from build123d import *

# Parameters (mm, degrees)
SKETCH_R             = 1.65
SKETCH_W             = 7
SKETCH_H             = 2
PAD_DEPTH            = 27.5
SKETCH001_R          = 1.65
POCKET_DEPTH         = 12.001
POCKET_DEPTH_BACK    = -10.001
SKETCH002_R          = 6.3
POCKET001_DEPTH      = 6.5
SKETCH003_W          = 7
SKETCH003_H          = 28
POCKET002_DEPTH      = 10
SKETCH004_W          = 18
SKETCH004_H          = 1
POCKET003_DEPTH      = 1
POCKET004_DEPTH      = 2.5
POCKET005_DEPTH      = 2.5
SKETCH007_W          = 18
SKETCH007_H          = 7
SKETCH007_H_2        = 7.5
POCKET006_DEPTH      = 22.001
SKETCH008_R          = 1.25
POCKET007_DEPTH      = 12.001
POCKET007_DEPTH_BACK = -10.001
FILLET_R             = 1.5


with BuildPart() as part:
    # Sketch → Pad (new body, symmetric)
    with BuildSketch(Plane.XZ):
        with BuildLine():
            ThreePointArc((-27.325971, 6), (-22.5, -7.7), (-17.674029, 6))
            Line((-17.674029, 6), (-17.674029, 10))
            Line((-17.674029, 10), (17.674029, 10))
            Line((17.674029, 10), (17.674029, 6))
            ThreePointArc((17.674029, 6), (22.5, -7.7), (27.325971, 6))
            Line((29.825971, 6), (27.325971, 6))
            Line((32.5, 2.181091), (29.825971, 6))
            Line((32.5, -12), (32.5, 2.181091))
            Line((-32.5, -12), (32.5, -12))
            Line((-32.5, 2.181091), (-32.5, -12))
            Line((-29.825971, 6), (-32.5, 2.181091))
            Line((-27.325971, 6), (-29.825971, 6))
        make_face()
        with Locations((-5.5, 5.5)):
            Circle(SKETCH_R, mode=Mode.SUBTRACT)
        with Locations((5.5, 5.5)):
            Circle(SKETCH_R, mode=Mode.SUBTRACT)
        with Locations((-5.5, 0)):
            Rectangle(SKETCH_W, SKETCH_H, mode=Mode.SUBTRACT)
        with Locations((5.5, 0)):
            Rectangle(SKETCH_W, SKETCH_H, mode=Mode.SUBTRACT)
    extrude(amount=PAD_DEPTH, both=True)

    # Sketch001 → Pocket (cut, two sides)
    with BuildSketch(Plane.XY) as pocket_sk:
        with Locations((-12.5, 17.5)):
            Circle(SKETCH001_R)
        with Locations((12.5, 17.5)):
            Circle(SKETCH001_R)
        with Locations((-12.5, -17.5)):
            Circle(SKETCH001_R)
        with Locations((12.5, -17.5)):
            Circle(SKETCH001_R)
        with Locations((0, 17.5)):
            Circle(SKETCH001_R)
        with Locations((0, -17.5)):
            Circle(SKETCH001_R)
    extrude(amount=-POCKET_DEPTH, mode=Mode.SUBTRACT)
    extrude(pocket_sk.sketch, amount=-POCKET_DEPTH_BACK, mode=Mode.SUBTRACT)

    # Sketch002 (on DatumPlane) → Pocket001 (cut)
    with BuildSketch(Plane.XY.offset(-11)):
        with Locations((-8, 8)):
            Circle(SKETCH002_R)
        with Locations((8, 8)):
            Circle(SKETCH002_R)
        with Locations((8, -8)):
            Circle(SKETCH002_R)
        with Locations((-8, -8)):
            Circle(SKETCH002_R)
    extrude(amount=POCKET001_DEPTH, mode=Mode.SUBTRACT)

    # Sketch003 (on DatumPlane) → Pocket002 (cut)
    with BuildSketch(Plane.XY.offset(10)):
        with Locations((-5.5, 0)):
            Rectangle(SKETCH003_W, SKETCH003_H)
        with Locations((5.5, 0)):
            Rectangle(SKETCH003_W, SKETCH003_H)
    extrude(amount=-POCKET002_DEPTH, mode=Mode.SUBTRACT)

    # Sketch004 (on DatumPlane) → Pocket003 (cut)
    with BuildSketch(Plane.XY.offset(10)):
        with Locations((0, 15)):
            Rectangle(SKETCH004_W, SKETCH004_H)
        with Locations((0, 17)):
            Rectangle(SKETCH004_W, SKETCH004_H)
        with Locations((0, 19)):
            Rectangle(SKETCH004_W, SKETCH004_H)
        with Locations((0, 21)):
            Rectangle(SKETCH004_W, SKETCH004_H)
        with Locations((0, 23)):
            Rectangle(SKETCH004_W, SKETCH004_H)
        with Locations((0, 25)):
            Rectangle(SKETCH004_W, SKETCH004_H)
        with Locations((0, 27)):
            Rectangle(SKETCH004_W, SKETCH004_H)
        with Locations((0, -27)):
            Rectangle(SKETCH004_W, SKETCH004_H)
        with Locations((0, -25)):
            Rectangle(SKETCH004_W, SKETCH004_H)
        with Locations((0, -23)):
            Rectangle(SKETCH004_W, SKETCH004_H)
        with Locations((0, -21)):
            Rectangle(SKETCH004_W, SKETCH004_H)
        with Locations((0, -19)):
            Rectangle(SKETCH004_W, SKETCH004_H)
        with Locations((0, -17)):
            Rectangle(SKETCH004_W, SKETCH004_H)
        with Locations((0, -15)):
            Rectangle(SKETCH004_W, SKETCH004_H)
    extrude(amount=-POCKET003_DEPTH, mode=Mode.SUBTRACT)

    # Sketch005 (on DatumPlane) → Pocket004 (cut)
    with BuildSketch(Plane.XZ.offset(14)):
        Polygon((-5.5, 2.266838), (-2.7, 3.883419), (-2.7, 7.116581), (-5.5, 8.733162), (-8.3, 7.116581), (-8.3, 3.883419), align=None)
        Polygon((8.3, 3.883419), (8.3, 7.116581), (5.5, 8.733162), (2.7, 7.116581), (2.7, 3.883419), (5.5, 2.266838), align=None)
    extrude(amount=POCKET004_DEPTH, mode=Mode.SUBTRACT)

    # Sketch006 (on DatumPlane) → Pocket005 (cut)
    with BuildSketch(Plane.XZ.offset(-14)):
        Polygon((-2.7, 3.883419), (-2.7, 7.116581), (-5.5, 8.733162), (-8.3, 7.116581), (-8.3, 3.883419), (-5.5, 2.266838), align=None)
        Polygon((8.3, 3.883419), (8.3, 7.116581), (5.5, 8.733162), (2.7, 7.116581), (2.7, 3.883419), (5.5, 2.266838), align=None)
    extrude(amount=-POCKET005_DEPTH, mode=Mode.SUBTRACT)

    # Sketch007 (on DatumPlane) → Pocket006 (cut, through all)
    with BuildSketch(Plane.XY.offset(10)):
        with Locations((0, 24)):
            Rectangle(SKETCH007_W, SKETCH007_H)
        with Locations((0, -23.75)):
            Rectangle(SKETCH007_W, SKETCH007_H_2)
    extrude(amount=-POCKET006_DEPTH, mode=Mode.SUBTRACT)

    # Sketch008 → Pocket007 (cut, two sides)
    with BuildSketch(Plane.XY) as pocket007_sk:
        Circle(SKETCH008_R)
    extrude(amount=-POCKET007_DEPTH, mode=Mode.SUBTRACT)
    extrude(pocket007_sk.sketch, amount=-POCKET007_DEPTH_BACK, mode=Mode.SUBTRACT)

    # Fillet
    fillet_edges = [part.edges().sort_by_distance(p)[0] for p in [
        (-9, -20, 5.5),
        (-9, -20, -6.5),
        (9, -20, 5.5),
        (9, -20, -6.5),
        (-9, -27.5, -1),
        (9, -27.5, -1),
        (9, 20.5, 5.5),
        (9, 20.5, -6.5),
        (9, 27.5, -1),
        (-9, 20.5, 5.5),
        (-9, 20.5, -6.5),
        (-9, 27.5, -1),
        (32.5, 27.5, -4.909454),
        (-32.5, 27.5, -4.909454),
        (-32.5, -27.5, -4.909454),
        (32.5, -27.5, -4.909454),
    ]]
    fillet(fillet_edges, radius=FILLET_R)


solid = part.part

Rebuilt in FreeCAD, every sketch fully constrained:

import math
import FreeCAD as App
import Part
import Sketcher

V = App.Vector
Q = App.Units.Quantity


def edges_at(feature, points):
    """Names of the edges that pass closest to the given points."""
    edges = feature.Shape.Edges
    near = lambda p: min(range(len(edges)), key=lambda i: edges[i].distToShape(Part.Vertex(*p))[0])
    return sorted({f"Edge{near(p) + 1}" for p in points})


def add_polygon(sketch, points):
    """Adds a closed chain of lines whose ends are joined by coincident constraints."""
    first, n = sketch.GeometryCount, len(points)
    for a, b in zip(points, points[1:] + points[:1]):
        sketch.addGeometry(Part.LineSegment(App.Vector(*a, 0), App.Vector(*b, 0)), False)
    for i in range(n):
        sketch.addConstraint(Sketcher.Constraint("Coincident", first + i, 2, first + (i + 1) % n, 1))

doc = App.newDocument("Part")
body = doc.addObject("PartDesign::Body", "Body")

# Sketch on XZ plane
sketch1 = doc.addObject("Sketcher::SketchObject", "Sketch")
body.addObject(sketch1)
sketch1.AttachmentSupport = (doc.XZ_Plane, [""])
sketch1.MapMode = "FlatFace"
sketch1.addGeometry(Part.ArcOfCircle(Part.Circle(V(-22.5, 0, 0), V(0, 0, 1), 7.7), math.radians(129), math.radians(411)), False)  # 0
sketch1.addGeometry(Part.LineSegment(V(-27.3, 6, 0), V(-29.8, 6, 0)), False)  # 1
sketch1.addGeometry(Part.LineSegment(V(-29.8, 6, 0), V(-32.5, 2.2, 0)), False)  # 2
sketch1.addGeometry(Part.LineSegment(V(-32.5, 2.2, 0), V(-32.5, -12, 0)), False)  # 3
sketch1.addGeometry(Part.LineSegment(V(-32.5, -12, 0), V(32.5, -12, 0)), False)  # 4
sketch1.addGeometry(Part.LineSegment(V(32.5, -12, 0), V(32.5, 2.2, 0)), False)  # 5
sketch1.addGeometry(Part.LineSegment(V(32.5, 2.2, 0), V(29.8, 6, 0)), False)  # 6
sketch1.addGeometry(Part.LineSegment(V(29.8, 6, 0), V(27.3, 6, 0)), False)  # 7
sketch1.addGeometry(Part.ArcOfCircle(Part.Circle(V(22.5, 0, 0), V(0, 0, 1), 7.7), math.radians(129), math.radians(411)), False)  # 8
sketch1.addGeometry(Part.LineSegment(V(17.7, 6, 0), V(17.7, 10, 0)), False)  # 9
sketch1.addGeometry(Part.LineSegment(V(17.7, 10, 0), V(-17.7, 10, 0)), False)  # 10
sketch1.addGeometry(Part.LineSegment(V(-17.7, 10, 0), V(-17.7, 6, 0)), False)  # 11
add_polygon(sketch1, [(2, -1), (2, 1), (9, 1), (9, -1)])  # lines 12-15
add_polygon(sketch1, [(-9, -1), (-9, 1), (-2, 1), (-2, -1)])  # lines 16-19
sketch1.addGeometry(Part.Circle(V(5.5, 5.5, 0), V(0, 0, 1), 1.6), False)  # 20
sketch1.addGeometry(Part.Circle(V(-5.5, 5.5, 0), V(0, 0, 1), 1.6), False)  # 21
sketch1.addConstraint(Sketcher.Constraint("Coincident", 0, 1, 1, 1))
sketch1.addConstraint(Sketcher.Constraint("Coincident", 1, 2, 2, 1))
sketch1.addConstraint(Sketcher.Constraint("Coincident", 2, 2, 3, 1))
sketch1.addConstraint(Sketcher.Constraint("Coincident", 3, 2, 4, 1))
sketch1.addConstraint(Sketcher.Constraint("Coincident", 4, 2, 5, 1))
sketch1.addConstraint(Sketcher.Constraint("Coincident", 5, 2, 6, 1))
sketch1.addConstraint(Sketcher.Constraint("Coincident", 6, 2, 7, 1))
sketch1.addConstraint(Sketcher.Constraint("Coincident", 7, 2, 8, 2))
sketch1.addConstraint(Sketcher.Constraint("Coincident", 8, 1, 9, 1))
sketch1.addConstraint(Sketcher.Constraint("Coincident", 9, 2, 10, 1))
sketch1.addConstraint(Sketcher.Constraint("Coincident", 10, 2, 11, 1))
sketch1.addConstraint(Sketcher.Constraint("Coincident", 11, 2, 0, 2))
sketch1.addConstraint(Sketcher.Constraint("Horizontal", 1))
sketch1.addConstraint(Sketcher.Constraint("Vertical", 3))
sketch1.addConstraint(Sketcher.Constraint("Horizontal", 4))
sketch1.addConstraint(Sketcher.Constraint("Vertical", 5))
sketch1.addConstraint(Sketcher.Constraint("Horizontal", 7))
sketch1.addConstraint(Sketcher.Constraint("Vertical", 9))
sketch1.addConstraint(Sketcher.Constraint("Horizontal", 10))
sketch1.addConstraint(Sketcher.Constraint("Vertical", 11))
sketch1.addConstraint(Sketcher.Constraint("Vertical", 12))
sketch1.addConstraint(Sketcher.Constraint("Horizontal", 13))
sketch1.addConstraint(Sketcher.Constraint("Vertical", 14))
sketch1.addConstraint(Sketcher.Constraint("Horizontal", 15))
sketch1.addConstraint(Sketcher.Constraint("Vertical", 16))
sketch1.addConstraint(Sketcher.Constraint("Horizontal", 17))
sketch1.addConstraint(Sketcher.Constraint("Vertical", 18))
sketch1.addConstraint(Sketcher.Constraint("Horizontal", 19))
sketch1.addConstraint(Sketcher.Constraint("Equal", 0, 8))
sketch1.addConstraint(Sketcher.Constraint("Equal", 20, 21))
sketch1.addConstraint(Sketcher.Constraint("Symmetric", 0, 3, 8, 3, -1, 1))
sketch1.addConstraint(Sketcher.Constraint("Symmetric", 14, 2, 16, 2, -1, 1))
sketch1.addConstraint(Sketcher.Constraint("Symmetric", 12, 2, 18, 2, -1, 1))
sketch1.addConstraint(Sketcher.Constraint("Symmetric", 20, 3, 21, 3, -2))
sketch1.addConstraint(Sketcher.Constraint("Symmetric", 2, 2, 5, 2, -2))
sketch1.addConstraint(Sketcher.Constraint("Symmetric", 1, 2, 6, 2, -2))
sketch1.addConstraint(Sketcher.Constraint("Symmetric", 8, 1, 11, 2, -2))
sketch1.addConstraint(Sketcher.Constraint("Horizontal", 7, 2, 8, 1))
sketch1.addConstraint(Sketcher.Constraint("Horizontal", 13, 2, 16, 2))
sketch1.addConstraint(Sketcher.Constraint("Diameter", 20, Q("3.3 mm")))
sketch1.addConstraint(Sketcher.Constraint("Radius", 0, Q("7.7 mm")))
sketch1.addConstraint(Sketcher.Constraint("DistanceX", 4, 1, 4, 2, Q("65 mm")))
sketch1.addConstraint(Sketcher.Constraint("DistanceX", 13, 1, 13, 2, Q("7 mm")))
sketch1.addConstraint(Sketcher.Constraint("DistanceY", 9, 1, 9, 2, Q("4 mm")))
sketch1.addConstraint(Sketcher.Constraint("DistanceY", 12, 1, 12, 2, Q("2 mm")))
sketch1.addConstraint(Sketcher.Constraint("Angle", 2, Q("-125.000001 deg")))
sketch1.addConstraint(Sketcher.Constraint("DistanceX", 1, 2, 1, 1, Q("2.5 mm")))
sketch1.addConstraint(Sketcher.Constraint("DistanceY", -1, 1, 0, 1, Q("6 mm")))
sketch1.addConstraint(Sketcher.Constraint("DistanceY", 3, 2, -1, 1, Q("12 mm")))
sketch1.addConstraint(Sketcher.Constraint("DistanceX", -1, 1, 12, 2, Q("2 mm")))
sketch1.addConstraint(Sketcher.Constraint("DistanceX", 0, 3, 8, 3, Q("45 mm")))
sketch1.addConstraint(Sketcher.Constraint("DistanceX", 20, 3, 8, 3, Q("17 mm")))
sketch1.addConstraint(Sketcher.Constraint("DistanceY", -1, 1, 20, 3, Q("5.5 mm")))
pad1 = doc.addObject("PartDesign::Pad", "Pad")
body.addObject(pad1)
pad1.Profile = sketch1
pad1.Length = 55
pad1.Midplane = True

# Sketch on XY plane
sketch2 = doc.addObject("Sketcher::SketchObject", "Sketch001")
body.addObject(sketch2)
sketch2.AttachmentSupport = (doc.XY_Plane, [""])
sketch2.MapMode = "FlatFace"
sketch2.addGeometry(Part.Circle(V(-12.5, 17.5, 0), V(0, 0, 1), 1.6), False)
sketch2.addGeometry(Part.Circle(V(12.5, 17.5, 0), V(0, 0, 1), 1.6), False)
sketch2.addGeometry(Part.Circle(V(-12.5, -17.5, 0), V(0, 0, 1), 1.6), False)
sketch2.addGeometry(Part.Circle(V(12.5, -17.5, 0), V(0, 0, 1), 1.6), False)
sketch2.addGeometry(Part.Circle(V(0, 17.5, 0), V(0, 0, 1), 1.6), False)
sketch2.addGeometry(Part.Circle(V(0, -17.5, 0), V(0, 0, 1), 1.6), False)
sketch2.addConstraint(Sketcher.Constraint("Equal", 0, 1))
sketch2.addConstraint(Sketcher.Constraint("Equal", 1, 2))
sketch2.addConstraint(Sketcher.Constraint("Equal", 2, 3))
sketch2.addConstraint(Sketcher.Constraint("Equal", 3, 4))
sketch2.addConstraint(Sketcher.Constraint("Equal", 4, 5))
sketch2.addConstraint(Sketcher.Constraint("Symmetric", 1, 3, 2, 3, -1, 1))
sketch2.addConstraint(Sketcher.Constraint("Symmetric", 0, 3, 3, 3, -1, 1))
sketch2.addConstraint(Sketcher.Constraint("Symmetric", 4, 3, 5, 3, -1, 1))
sketch2.addConstraint(Sketcher.Constraint("Symmetric", 0, 3, 1, 3, -2))
sketch2.addConstraint(Sketcher.Constraint("PointOnObject", 4, 3, -2))
sketch2.addConstraint(Sketcher.Constraint("Horizontal", 1, 3, 4, 3))
sketch2.addConstraint(Sketcher.Constraint("Diameter", 0, Q("3.3 mm")))
sketch2.addConstraint(Sketcher.Constraint("DistanceX", 0, 3, 1, 3, Q("25 mm")))
sketch2.addConstraint(Sketcher.Constraint("DistanceY", 2, 3, 0, 3, Q("35 mm")))
pocket1 = doc.addObject("PartDesign::Pocket", "Pocket")
body.addObject(pocket1)
pocket1.Profile = sketch2
pocket1.Type = "ThroughAll"
pocket1.Midplane = True

# Sketch on XY plane
sketch3 = doc.addObject("Sketcher::SketchObject", "Sketch002")
body.addObject(sketch3)
sketch3.AttachmentSupport = (doc.XY_Plane, [""])
sketch3.MapMode = "FlatFace"
sketch3.AttachmentOffset = App.Placement(V(0, 0, -11), App.Rotation())
sketch3.addGeometry(Part.Circle(V(-8, 8, 0), V(0, 0, 1), 6), False)
sketch3.addGeometry(Part.Circle(V(8, 8, 0), V(0, 0, 1), 6), False)
sketch3.addGeometry(Part.Circle(V(8, -8, 0), V(0, 0, 1), 6), False)
sketch3.addGeometry(Part.Circle(V(-8, -8, 0), V(0, 0, 1), 6), False)
sketch3.addConstraint(Sketcher.Constraint("Equal", 0, 1))
sketch3.addConstraint(Sketcher.Constraint("Equal", 1, 2))
sketch3.addConstraint(Sketcher.Constraint("Equal", 2, 3))
sketch3.addConstraint(Sketcher.Constraint("Symmetric", 0, 3, 2, 3, -1, 1))
sketch3.addConstraint(Sketcher.Constraint("Symmetric", 1, 3, 3, 3, -1, 1))
sketch3.addConstraint(Sketcher.Constraint("Symmetric", 0, 3, 1, 3, -2))
sketch3.addConstraint(Sketcher.Constraint("Diameter", 0, Q("12.6 mm")))
sketch3.addConstraint(Sketcher.Constraint("DistanceX", 0, 3, -1, 1, Q("8 mm")))
sketch3.addConstraint(Sketcher.Constraint("DistanceY", -1, 1, 0, 3, Q("8 mm")))
pocket2 = doc.addObject("PartDesign::Pocket", "Pocket001")
body.addObject(pocket2)
pocket2.Profile = sketch3
pocket2.Length = 6.5
pocket2.Reversed = True

# Sketch on XY plane
sketch4 = doc.addObject("Sketcher::SketchObject", "Sketch003")
body.addObject(sketch4)
sketch4.AttachmentSupport = (doc.XY_Plane, [""])
sketch4.MapMode = "FlatFace"
sketch4.AttachmentOffset = App.Placement(V(0, 0, 10), App.Rotation())
add_polygon(sketch4, [(-9, 14), (-9, -14), (-2, -14), (-2, 14)])  # lines 0-3
add_polygon(sketch4, [(2, 14), (2, -14), (9, -14), (9, 14)])  # lines 4-7
sketch4.addConstraint(Sketcher.Constraint("Vertical", 0))
sketch4.addConstraint(Sketcher.Constraint("Horizontal", 1))
sketch4.addConstraint(Sketcher.Constraint("Vertical", 2))
sketch4.addConstraint(Sketcher.Constraint("Horizontal", 3))
sketch4.addConstraint(Sketcher.Constraint("Vertical", 4))
sketch4.addConstraint(Sketcher.Constraint("Horizontal", 5))
sketch4.addConstraint(Sketcher.Constraint("Vertical", 6))
sketch4.addConstraint(Sketcher.Constraint("Horizontal", 7))
sketch4.addConstraint(Sketcher.Constraint("Symmetric", 2, 2, 4, 2, -1, 1))
sketch4.addConstraint(Sketcher.Constraint("Symmetric", 0, 2, 6, 2, -1, 1))
sketch4.addConstraint(Sketcher.Constraint("Horizontal", 1, 2, 4, 2))
sketch4.addConstraint(Sketcher.Constraint("DistanceX", 1, 1, 1, 2, Q("7 mm")))
sketch4.addConstraint(Sketcher.Constraint("DistanceY", 0, 2, 0, 1, Q("28 mm")))
sketch4.addConstraint(Sketcher.Constraint("DistanceX", 0, 2, -1, 1, Q("9 mm")))
pocket3 = doc.addObject("PartDesign::Pocket", "Pocket002")
body.addObject(pocket3)
pocket3.Profile = sketch4
pocket3.Length = 10

# Sketch on XY plane
sketch5 = doc.addObject("Sketcher::SketchObject", "Sketch004")
body.addObject(sketch5)
sketch5.AttachmentSupport = (doc.XY_Plane, [""])
sketch5.MapMode = "FlatFace"
sketch5.AttachmentOffset = App.Placement(V(0, 0, 10), App.Rotation())
add_polygon(sketch5, [(-9, 15.5), (-9, 14.5), (9, 14.5), (9, 15.5)])  # lines 0-3
add_polygon(sketch5, [(-9, 17.5), (-9, 16.5), (9, 16.5), (9, 17.5)])  # lines 4-7
add_polygon(sketch5, [(-9, 19.5), (-9, 18.5), (9, 18.5), (9, 19.5)])  # lines 8-11
add_polygon(sketch5, [(-9, 21.5), (-9, 20.5), (9, 20.5), (9, 21.5)])  # lines 12-15
add_polygon(sketch5, [(-9, 23.5), (-9, 22.5), (9, 22.5), (9, 23.5)])  # lines 16-19
add_polygon(sketch5, [(-9, 25.5), (-9, 24.5), (9, 24.5), (9, 25.5)])  # lines 20-23
add_polygon(sketch5, [(-9, 27.5), (-9, 26.5), (9, 26.5), (9, 27.5)])  # lines 24-27
add_polygon(sketch5, [(-9, -26.5), (-9, -27.5), (9, -27.5), (9, -26.5)])  # lines 28-31
add_polygon(sketch5, [(-9, -24.5), (-9, -25.5), (9, -25.5), (9, -24.5)])  # lines 32-35
add_polygon(sketch5, [(-9, -22.5), (-9, -23.5), (9, -23.5), (9, -22.5)])  # lines 36-39
add_polygon(sketch5, [(-9, -20.5), (-9, -21.5), (9, -21.5), (9, -20.5)])  # lines 40-43
add_polygon(sketch5, [(-9, -18.5), (-9, -19.5), (9, -19.5), (9, -18.5)])  # lines 44-47
add_polygon(sketch5, [(-9, -16.5), (-9, -17.5), (9, -17.5), (9, -16.5)])  # lines 48-51
add_polygon(sketch5, [(-9, -14.5), (-9, -15.5), (9, -15.5), (9, -14.5)])  # lines 52-55
sketch5.addConstraint(Sketcher.Constraint("Vertical", 0))
sketch5.addConstraint(Sketcher.Constraint("Horizontal", 1))
sketch5.addConstraint(Sketcher.Constraint("Vertical", 2))
sketch5.addConstraint(Sketcher.Constraint("Horizontal", 3))
sketch5.addConstraint(Sketcher.Constraint("Vertical", 4))
sketch5.addConstraint(Sketcher.Constraint("Horizontal", 5))
sketch5.addConstraint(Sketcher.Constraint("Vertical", 6))
sketch5.addConstraint(Sketcher.Constraint("Horizontal", 7))
sketch5.addConstraint(Sketcher.Constraint("Vertical", 8))
sketch5.addConstraint(Sketcher.Constraint("Horizontal", 9))
sketch5.addConstraint(Sketcher.Constraint("Vertical", 10))
sketch5.addConstraint(Sketcher.Constraint("Horizontal", 11))
sketch5.addConstraint(Sketcher.Constraint("Vertical", 12))
sketch5.addConstraint(Sketcher.Constraint("Horizontal", 13))
sketch5.addConstraint(Sketcher.Constraint("Vertical", 14))
sketch5.addConstraint(Sketcher.Constraint("Horizontal", 15))
sketch5.addConstraint(Sketcher.Constraint("Vertical", 16))
sketch5.addConstraint(Sketcher.Constraint("Horizontal", 17))
sketch5.addConstraint(Sketcher.Constraint("Vertical", 18))
sketch5.addConstraint(Sketcher.Constraint("Horizontal", 19))
sketch5.addConstraint(Sketcher.Constraint("Vertical", 20))
sketch5.addConstraint(Sketcher.Constraint("Horizontal", 21))
sketch5.addConstraint(Sketcher.Constraint("Vertical", 22))
sketch5.addConstraint(Sketcher.Constraint("Horizontal", 23))
sketch5.addConstraint(Sketcher.Constraint("Vertical", 24))
sketch5.addConstraint(Sketcher.Constraint("Horizontal", 25))
sketch5.addConstraint(Sketcher.Constraint("Vertical", 26))
sketch5.addConstraint(Sketcher.Constraint("Horizontal", 27))
sketch5.addConstraint(Sketcher.Constraint("Vertical", 28))
sketch5.addConstraint(Sketcher.Constraint("Horizontal", 29))
sketch5.addConstraint(Sketcher.Constraint("Vertical", 30))
sketch5.addConstraint(Sketcher.Constraint("Horizontal", 31))
sketch5.addConstraint(Sketcher.Constraint("Vertical", 32))
sketch5.addConstraint(Sketcher.Constraint("Horizontal", 33))
sketch5.addConstraint(Sketcher.Constraint("Vertical", 34))
sketch5.addConstraint(Sketcher.Constraint("Horizontal", 35))
sketch5.addConstraint(Sketcher.Constraint("Vertical", 36))
sketch5.addConstraint(Sketcher.Constraint("Horizontal", 37))
sketch5.addConstraint(Sketcher.Constraint("Vertical", 38))
sketch5.addConstraint(Sketcher.Constraint("Horizontal", 39))
sketch5.addConstraint(Sketcher.Constraint("Vertical", 40))
sketch5.addConstraint(Sketcher.Constraint("Horizontal", 41))
sketch5.addConstraint(Sketcher.Constraint("Vertical", 42))
sketch5.addConstraint(Sketcher.Constraint("Horizontal", 43))
sketch5.addConstraint(Sketcher.Constraint("Vertical", 44))
sketch5.addConstraint(Sketcher.Constraint("Horizontal", 45))
sketch5.addConstraint(Sketcher.Constraint("Vertical", 46))
sketch5.addConstraint(Sketcher.Constraint("Horizontal", 47))
sketch5.addConstraint(Sketcher.Constraint("Vertical", 48))
sketch5.addConstraint(Sketcher.Constraint("Horizontal", 49))
sketch5.addConstraint(Sketcher.Constraint("Vertical", 50))
sketch5.addConstraint(Sketcher.Constraint("Horizontal", 51))
sketch5.addConstraint(Sketcher.Constraint("Vertical", 52))
sketch5.addConstraint(Sketcher.Constraint("Horizontal", 53))
sketch5.addConstraint(Sketcher.Constraint("Vertical", 54))
sketch5.addConstraint(Sketcher.Constraint("Horizontal", 55))
sketch5.addConstraint(Sketcher.Constraint("Symmetric", 26, 2, 28, 2, -1, 1))
sketch5.addConstraint(Sketcher.Constraint("Symmetric", 24, 2, 30, 2, -1, 1))
sketch5.addConstraint(Sketcher.Constraint("Symmetric", 22, 2, 32, 2, -1, 1))
sketch5.addConstraint(Sketcher.Constraint("Symmetric", 20, 2, 34, 2, -1, 1))
sketch5.addConstraint(Sketcher.Constraint("Symmetric", 18, 2, 36, 2, -1, 1))
sketch5.addConstraint(Sketcher.Constraint("Symmetric", 16, 2, 38, 2, -1, 1))
sketch5.addConstraint(Sketcher.Constraint("Symmetric", 14, 2, 40, 2, -1, 1))
sketch5.addConstraint(Sketcher.Constraint("Symmetric", 12, 2, 42, 2, -1, 1))
sketch5.addConstraint(Sketcher.Constraint("Symmetric", 10, 2, 44, 2, -1, 1))
sketch5.addConstraint(Sketcher.Constraint("Symmetric", 8, 2, 46, 2, -1, 1))
sketch5.addConstraint(Sketcher.Constraint("Symmetric", 6, 2, 48, 2, -1, 1))
sketch5.addConstraint(Sketcher.Constraint("Symmetric", 4, 2, 50, 2, -1, 1))
sketch5.addConstraint(Sketcher.Constraint("Symmetric", 2, 2, 52, 2, -1, 1))
sketch5.addConstraint(Sketcher.Constraint("Symmetric", 0, 2, 54, 2, -1, 1))
sketch5.addConstraint(Sketcher.Constraint("Vertical", 3, 2, 4, 2))
sketch5.addConstraint(Sketcher.Constraint("Vertical", 2, 2, 5, 2))
sketch5.addConstraint(Sketcher.Constraint("Vertical", 7, 2, 8, 2))
sketch5.addConstraint(Sketcher.Constraint("Vertical", 6, 2, 9, 2))
sketch5.addConstraint(Sketcher.Constraint("Vertical", 11, 2, 12, 2))
sketch5.addConstraint(Sketcher.Constraint("Vertical", 10, 2, 13, 2))
sketch5.addConstraint(Sketcher.Constraint("Vertical", 15, 2, 16, 2))
sketch5.addConstraint(Sketcher.Constraint("Vertical", 14, 2, 17, 2))
sketch5.addConstraint(Sketcher.Constraint("Vertical", 19, 2, 20, 2))
sketch5.addConstraint(Sketcher.Constraint("Vertical", 18, 2, 21, 2))
sketch5.addConstraint(Sketcher.Constraint("Vertical", 23, 2, 24, 2))
sketch5.addConstraint(Sketcher.Constraint("Vertical", 22, 2, 25, 2))
sketch5.addConstraint(Sketcher.Constraint("Vertical", 27, 2, 28, 2))
sketch5.addConstraint(Sketcher.Constraint("Equal", 2, 4))
sketch5.addConstraint(Sketcher.Constraint("Equal", 6, 8))
sketch5.addConstraint(Sketcher.Constraint("Equal", 10, 12))
sketch5.addConstraint(Sketcher.Constraint("Equal", 14, 16))
sketch5.addConstraint(Sketcher.Constraint("Equal", 18, 20))
sketch5.addConstraint(Sketcher.Constraint("Equal", 22, 24))
sketch5.addConstraint(Sketcher.Constraint("DistanceX", 1, 1, 1, 2, Q("18 mm")))
sketch5.addConstraint(Sketcher.Constraint("DistanceY", 0, 2, 0, 1, Q("1 mm")))
sketch5.addConstraint(Sketcher.Constraint("DistanceY", 3, 2, 4, 2, Q("1 mm")))
sketch5.addConstraint(Sketcher.Constraint("DistanceY", 7, 2, 8, 2, Q("1 mm")))
sketch5.addConstraint(Sketcher.Constraint("DistanceY", 11, 2, 12, 2, Q("1 mm")))
sketch5.addConstraint(Sketcher.Constraint("DistanceY", 15, 2, 16, 2, Q("1 mm")))
sketch5.addConstraint(Sketcher.Constraint("DistanceY", 19, 2, 20, 2, Q("1 mm")))
sketch5.addConstraint(Sketcher.Constraint("DistanceY", 23, 2, 24, 2, Q("1 mm")))
sketch5.addConstraint(Sketcher.Constraint("DistanceY", 28, 2, 0, 2, Q("42 mm")))
pocket4 = doc.addObject("PartDesign::Pocket", "Pocket003")
body.addObject(pocket4)
pocket4.Profile = sketch5
pocket4.Length = 1

# Sketch on XZ plane
sketch6 = doc.addObject("Sketcher::SketchObject", "Sketch005")
body.addObject(sketch6)
sketch6.AttachmentSupport = (doc.XZ_Plane, [""])
sketch6.MapMode = "FlatFace"
sketch6.AttachmentOffset = App.Placement(V(0, 0, 14), App.Rotation())
add_polygon(sketch6, [(-5.5, 2.3), (-2.7, 3.9), (-2.7, 7.1), (-5.5, 8.7), (-8.3, 7.1), (-8.3, 3.9)])  # lines 0-5
add_polygon(sketch6, [(8.3, 3.9), (8.3, 7.1), (5.5, 8.7), (2.7, 7.1), (2.7, 3.9), (5.5, 2.3)])  # lines 6-11
sketch6.addConstraint(Sketcher.Constraint("Vertical", 1))
sketch6.addConstraint(Sketcher.Constraint("Vertical", 4))
sketch6.addConstraint(Sketcher.Constraint("Vertical", 6))
sketch6.addConstraint(Sketcher.Constraint("Vertical", 9))
sketch6.addConstraint(Sketcher.Constraint("Symmetric", 3, 2, 6, 2, -2))
sketch6.addConstraint(Sketcher.Constraint("Symmetric", 2, 2, 7, 2, -2))
sketch6.addConstraint(Sketcher.Constraint("Symmetric", 1, 2, 8, 2, -2))
sketch6.addConstraint(Sketcher.Constraint("Symmetric", 5, 2, 10, 2, -2))
sketch6.addConstraint(Sketcher.Constraint("Parallel", 0, 3))
sketch6.addConstraint(Sketcher.Constraint("Parallel", 2, 5))
sketch6.addConstraint(Sketcher.Constraint("Parallel", 5, 7))
sketch6.addConstraint(Sketcher.Constraint("Parallel", 7, 10))
sketch6.addConstraint(Sketcher.Constraint("Parallel", 8, 11))
sketch6.addConstraint(Sketcher.Constraint("Horizontal", 1, 2, 3, 2))
sketch6.addConstraint(Sketcher.Constraint("Horizontal", 0, 2, 4, 2))
sketch6.addConstraint(Sketcher.Constraint("Angle", 0, Q("30.000004 deg")))
sketch6.addConstraint(Sketcher.Constraint("DistanceX", 1, 2, 6, 2, Q("11 mm")))
sketch6.addConstraint(Sketcher.Constraint("DistanceX", 0, 2, -1, 1, Q("2.7 mm")))
sketch6.addConstraint(Sketcher.Constraint("DistanceY", 1, 1, 1, 2, Q("3.233162 mm")))
sketch6.addConstraint(Sketcher.Constraint("DistanceY", -1, 1, 0, 2, Q("3.883419 mm")))
pocket5 = doc.addObject("PartDesign::Pocket", "Pocket004")
body.addObject(pocket5)
pocket5.Profile = sketch6
pocket5.Length = 2.5
pocket5.Reversed = True

# Sketch on XZ plane
sketch7 = doc.addObject("Sketcher::SketchObject", "Sketch006")
body.addObject(sketch7)
sketch7.AttachmentSupport = (doc.XZ_Plane, [""])
sketch7.MapMode = "FlatFace"
sketch7.AttachmentOffset = App.Placement(V(0, 0, -14), App.Rotation())
add_polygon(sketch7, [(-2.7, 3.9), (-2.7, 7.1), (-5.5, 8.7), (-8.3, 7.1), (-8.3, 3.9), (-5.5, 2.3)])  # lines 0-5
add_polygon(sketch7, [(8.3, 3.9), (8.3, 7.1), (5.5, 8.7), (2.7, 7.1), (2.7, 3.9), (5.5, 2.3)])  # lines 6-11
sketch7.addConstraint(Sketcher.Constraint("Vertical", 0))
sketch7.addConstraint(Sketcher.Constraint("Vertical", 3))
sketch7.addConstraint(Sketcher.Constraint("Vertical", 6))
sketch7.addConstraint(Sketcher.Constraint("Vertical", 9))
sketch7.addConstraint(Sketcher.Constraint("Symmetric", 2, 2, 6, 2, -2))
sketch7.addConstraint(Sketcher.Constraint("Symmetric", 1, 2, 7, 2, -2))
sketch7.addConstraint(Sketcher.Constraint("Symmetric", 0, 2, 8, 2, -2))
sketch7.addConstraint(Sketcher.Constraint("Symmetric", 4, 2, 10, 2, -2))
sketch7.addConstraint(Sketcher.Constraint("Parallel", 1, 4))
sketch7.addConstraint(Sketcher.Constraint("Parallel", 2, 5))
sketch7.addConstraint(Sketcher.Constraint("Parallel", 4, 7))
sketch7.addConstraint(Sketcher.Constraint("Parallel", 7, 10))
sketch7.addConstraint(Sketcher.Constraint("Parallel", 8, 11))
sketch7.addConstraint(Sketcher.Constraint("Horizontal", 0, 2, 2, 2))
sketch7.addConstraint(Sketcher.Constraint("Horizontal", 3, 2, 5, 2))
sketch7.addConstraint(Sketcher.Constraint("Angle", 1, Q("149.999996 deg")))
sketch7.addConstraint(Sketcher.Constraint("DistanceX", 0, 2, 6, 2, Q("11 mm")))
sketch7.addConstraint(Sketcher.Constraint("DistanceX", 0, 2, -1, 1, Q("2.7 mm")))
sketch7.addConstraint(Sketcher.Constraint("DistanceY", 0, 1, 0, 2, Q("3.233162 mm")))
sketch7.addConstraint(Sketcher.Constraint("DistanceY", -1, 1, 0, 2, Q("7.116581 mm")))
pocket6 = doc.addObject("PartDesign::Pocket", "Pocket005")
body.addObject(pocket6)
pocket6.Profile = sketch7
pocket6.Length = 2.5

# Sketch on XY plane
sketch8 = doc.addObject("Sketcher::SketchObject", "Sketch007")
body.addObject(sketch8)
sketch8.AttachmentSupport = (doc.XY_Plane, [""])
sketch8.MapMode = "FlatFace"
sketch8.AttachmentOffset = App.Placement(V(0, 0, 10), App.Rotation())
add_polygon(sketch8, [(-9, 28), (-9, 20), (9, 20), (9, 28)])  # lines 0-3
add_polygon(sketch8, [(-9, -20), (-9, -28), (9, -28), (9, -20)])  # lines 4-7
sketch8.addConstraint(Sketcher.Constraint("Vertical", 0))
sketch8.addConstraint(Sketcher.Constraint("Horizontal", 1))
sketch8.addConstraint(Sketcher.Constraint("Vertical", 2))
sketch8.addConstraint(Sketcher.Constraint("Horizontal", 3))
sketch8.addConstraint(Sketcher.Constraint("Vertical", 4))
sketch8.addConstraint(Sketcher.Constraint("Horizontal", 5))
sketch8.addConstraint(Sketcher.Constraint("Vertical", 6))
sketch8.addConstraint(Sketcher.Constraint("Horizontal", 7))
sketch8.addConstraint(Sketcher.Constraint("Symmetric", 2, 2, 4, 2, -1, 1))
sketch8.addConstraint(Sketcher.Constraint("Vertical", 3, 2, 4, 2))
sketch8.addConstraint(Sketcher.Constraint("Vertical", 2, 2, 5, 2))
sketch8.addConstraint(Sketcher.Constraint("DistanceX", 1, 1, 1, 2, Q("18 mm")))
sketch8.addConstraint(Sketcher.Constraint("DistanceY", 0, 2, 0, 1, Q("7 mm")))
sketch8.addConstraint(Sketcher.Constraint("DistanceY", 4, 2, 4, 1, Q("7.5 mm")))
sketch8.addConstraint(Sketcher.Constraint("DistanceY", 6, 2, -1, 1, Q("20 mm")))
pocket7 = doc.addObject("PartDesign::Pocket", "Pocket006")
body.addObject(pocket7)
pocket7.Profile = sketch8
pocket7.Type = "ThroughAll"

# Sketch on XY plane
sketch9 = doc.addObject("Sketcher::SketchObject", "Sketch008")
body.addObject(sketch9)
sketch9.AttachmentSupport = (doc.XY_Plane, [""])
sketch9.MapMode = "FlatFace"
sketch9.addGeometry(Part.Circle(V(0, 0, 0), V(0, 0, 1), 1.2), False)
sketch9.addConstraint(Sketcher.Constraint("Coincident", 0, 3, -1, 1))
sketch9.addConstraint(Sketcher.Constraint("Diameter", 0, Q("2.5 mm")))
pocket8 = doc.addObject("PartDesign::Pocket", "Pocket007")
body.addObject(pocket8)
pocket8.Profile = sketch9
pocket8.Type = "ThroughAll"
pocket8.Midplane = True
doc.recompute()

fillet = doc.addObject("PartDesign::Fillet", "Fillet")
body.addObject(fillet)
fillet.Base = (pocket8, edges_at(pocket8, [
    (-9, -20, 5.5),
    (-9, -20, -6.5),
    (9, -20, 5.5),
    (9, -20, -6.5),
    (-9, -27.5, -1),
    (9, -27.5, -1),
    (9, 20.5, 5.5),
    (9, 20.5, -6.5),
    (9, 27.5, -1),
    (-9, 20.5, 5.5),
    (-9, 20.5, -6.5),
    (-9, 27.5, -1),
    (32.5, 27.5, -4.909),
    (-32.5, 27.5, -4.909),
    (-32.5, -27.5, -4.909),
    (32.5, -27.5, -4.909),
]))
fillet.Radius = 1.5

doc.recompute()
